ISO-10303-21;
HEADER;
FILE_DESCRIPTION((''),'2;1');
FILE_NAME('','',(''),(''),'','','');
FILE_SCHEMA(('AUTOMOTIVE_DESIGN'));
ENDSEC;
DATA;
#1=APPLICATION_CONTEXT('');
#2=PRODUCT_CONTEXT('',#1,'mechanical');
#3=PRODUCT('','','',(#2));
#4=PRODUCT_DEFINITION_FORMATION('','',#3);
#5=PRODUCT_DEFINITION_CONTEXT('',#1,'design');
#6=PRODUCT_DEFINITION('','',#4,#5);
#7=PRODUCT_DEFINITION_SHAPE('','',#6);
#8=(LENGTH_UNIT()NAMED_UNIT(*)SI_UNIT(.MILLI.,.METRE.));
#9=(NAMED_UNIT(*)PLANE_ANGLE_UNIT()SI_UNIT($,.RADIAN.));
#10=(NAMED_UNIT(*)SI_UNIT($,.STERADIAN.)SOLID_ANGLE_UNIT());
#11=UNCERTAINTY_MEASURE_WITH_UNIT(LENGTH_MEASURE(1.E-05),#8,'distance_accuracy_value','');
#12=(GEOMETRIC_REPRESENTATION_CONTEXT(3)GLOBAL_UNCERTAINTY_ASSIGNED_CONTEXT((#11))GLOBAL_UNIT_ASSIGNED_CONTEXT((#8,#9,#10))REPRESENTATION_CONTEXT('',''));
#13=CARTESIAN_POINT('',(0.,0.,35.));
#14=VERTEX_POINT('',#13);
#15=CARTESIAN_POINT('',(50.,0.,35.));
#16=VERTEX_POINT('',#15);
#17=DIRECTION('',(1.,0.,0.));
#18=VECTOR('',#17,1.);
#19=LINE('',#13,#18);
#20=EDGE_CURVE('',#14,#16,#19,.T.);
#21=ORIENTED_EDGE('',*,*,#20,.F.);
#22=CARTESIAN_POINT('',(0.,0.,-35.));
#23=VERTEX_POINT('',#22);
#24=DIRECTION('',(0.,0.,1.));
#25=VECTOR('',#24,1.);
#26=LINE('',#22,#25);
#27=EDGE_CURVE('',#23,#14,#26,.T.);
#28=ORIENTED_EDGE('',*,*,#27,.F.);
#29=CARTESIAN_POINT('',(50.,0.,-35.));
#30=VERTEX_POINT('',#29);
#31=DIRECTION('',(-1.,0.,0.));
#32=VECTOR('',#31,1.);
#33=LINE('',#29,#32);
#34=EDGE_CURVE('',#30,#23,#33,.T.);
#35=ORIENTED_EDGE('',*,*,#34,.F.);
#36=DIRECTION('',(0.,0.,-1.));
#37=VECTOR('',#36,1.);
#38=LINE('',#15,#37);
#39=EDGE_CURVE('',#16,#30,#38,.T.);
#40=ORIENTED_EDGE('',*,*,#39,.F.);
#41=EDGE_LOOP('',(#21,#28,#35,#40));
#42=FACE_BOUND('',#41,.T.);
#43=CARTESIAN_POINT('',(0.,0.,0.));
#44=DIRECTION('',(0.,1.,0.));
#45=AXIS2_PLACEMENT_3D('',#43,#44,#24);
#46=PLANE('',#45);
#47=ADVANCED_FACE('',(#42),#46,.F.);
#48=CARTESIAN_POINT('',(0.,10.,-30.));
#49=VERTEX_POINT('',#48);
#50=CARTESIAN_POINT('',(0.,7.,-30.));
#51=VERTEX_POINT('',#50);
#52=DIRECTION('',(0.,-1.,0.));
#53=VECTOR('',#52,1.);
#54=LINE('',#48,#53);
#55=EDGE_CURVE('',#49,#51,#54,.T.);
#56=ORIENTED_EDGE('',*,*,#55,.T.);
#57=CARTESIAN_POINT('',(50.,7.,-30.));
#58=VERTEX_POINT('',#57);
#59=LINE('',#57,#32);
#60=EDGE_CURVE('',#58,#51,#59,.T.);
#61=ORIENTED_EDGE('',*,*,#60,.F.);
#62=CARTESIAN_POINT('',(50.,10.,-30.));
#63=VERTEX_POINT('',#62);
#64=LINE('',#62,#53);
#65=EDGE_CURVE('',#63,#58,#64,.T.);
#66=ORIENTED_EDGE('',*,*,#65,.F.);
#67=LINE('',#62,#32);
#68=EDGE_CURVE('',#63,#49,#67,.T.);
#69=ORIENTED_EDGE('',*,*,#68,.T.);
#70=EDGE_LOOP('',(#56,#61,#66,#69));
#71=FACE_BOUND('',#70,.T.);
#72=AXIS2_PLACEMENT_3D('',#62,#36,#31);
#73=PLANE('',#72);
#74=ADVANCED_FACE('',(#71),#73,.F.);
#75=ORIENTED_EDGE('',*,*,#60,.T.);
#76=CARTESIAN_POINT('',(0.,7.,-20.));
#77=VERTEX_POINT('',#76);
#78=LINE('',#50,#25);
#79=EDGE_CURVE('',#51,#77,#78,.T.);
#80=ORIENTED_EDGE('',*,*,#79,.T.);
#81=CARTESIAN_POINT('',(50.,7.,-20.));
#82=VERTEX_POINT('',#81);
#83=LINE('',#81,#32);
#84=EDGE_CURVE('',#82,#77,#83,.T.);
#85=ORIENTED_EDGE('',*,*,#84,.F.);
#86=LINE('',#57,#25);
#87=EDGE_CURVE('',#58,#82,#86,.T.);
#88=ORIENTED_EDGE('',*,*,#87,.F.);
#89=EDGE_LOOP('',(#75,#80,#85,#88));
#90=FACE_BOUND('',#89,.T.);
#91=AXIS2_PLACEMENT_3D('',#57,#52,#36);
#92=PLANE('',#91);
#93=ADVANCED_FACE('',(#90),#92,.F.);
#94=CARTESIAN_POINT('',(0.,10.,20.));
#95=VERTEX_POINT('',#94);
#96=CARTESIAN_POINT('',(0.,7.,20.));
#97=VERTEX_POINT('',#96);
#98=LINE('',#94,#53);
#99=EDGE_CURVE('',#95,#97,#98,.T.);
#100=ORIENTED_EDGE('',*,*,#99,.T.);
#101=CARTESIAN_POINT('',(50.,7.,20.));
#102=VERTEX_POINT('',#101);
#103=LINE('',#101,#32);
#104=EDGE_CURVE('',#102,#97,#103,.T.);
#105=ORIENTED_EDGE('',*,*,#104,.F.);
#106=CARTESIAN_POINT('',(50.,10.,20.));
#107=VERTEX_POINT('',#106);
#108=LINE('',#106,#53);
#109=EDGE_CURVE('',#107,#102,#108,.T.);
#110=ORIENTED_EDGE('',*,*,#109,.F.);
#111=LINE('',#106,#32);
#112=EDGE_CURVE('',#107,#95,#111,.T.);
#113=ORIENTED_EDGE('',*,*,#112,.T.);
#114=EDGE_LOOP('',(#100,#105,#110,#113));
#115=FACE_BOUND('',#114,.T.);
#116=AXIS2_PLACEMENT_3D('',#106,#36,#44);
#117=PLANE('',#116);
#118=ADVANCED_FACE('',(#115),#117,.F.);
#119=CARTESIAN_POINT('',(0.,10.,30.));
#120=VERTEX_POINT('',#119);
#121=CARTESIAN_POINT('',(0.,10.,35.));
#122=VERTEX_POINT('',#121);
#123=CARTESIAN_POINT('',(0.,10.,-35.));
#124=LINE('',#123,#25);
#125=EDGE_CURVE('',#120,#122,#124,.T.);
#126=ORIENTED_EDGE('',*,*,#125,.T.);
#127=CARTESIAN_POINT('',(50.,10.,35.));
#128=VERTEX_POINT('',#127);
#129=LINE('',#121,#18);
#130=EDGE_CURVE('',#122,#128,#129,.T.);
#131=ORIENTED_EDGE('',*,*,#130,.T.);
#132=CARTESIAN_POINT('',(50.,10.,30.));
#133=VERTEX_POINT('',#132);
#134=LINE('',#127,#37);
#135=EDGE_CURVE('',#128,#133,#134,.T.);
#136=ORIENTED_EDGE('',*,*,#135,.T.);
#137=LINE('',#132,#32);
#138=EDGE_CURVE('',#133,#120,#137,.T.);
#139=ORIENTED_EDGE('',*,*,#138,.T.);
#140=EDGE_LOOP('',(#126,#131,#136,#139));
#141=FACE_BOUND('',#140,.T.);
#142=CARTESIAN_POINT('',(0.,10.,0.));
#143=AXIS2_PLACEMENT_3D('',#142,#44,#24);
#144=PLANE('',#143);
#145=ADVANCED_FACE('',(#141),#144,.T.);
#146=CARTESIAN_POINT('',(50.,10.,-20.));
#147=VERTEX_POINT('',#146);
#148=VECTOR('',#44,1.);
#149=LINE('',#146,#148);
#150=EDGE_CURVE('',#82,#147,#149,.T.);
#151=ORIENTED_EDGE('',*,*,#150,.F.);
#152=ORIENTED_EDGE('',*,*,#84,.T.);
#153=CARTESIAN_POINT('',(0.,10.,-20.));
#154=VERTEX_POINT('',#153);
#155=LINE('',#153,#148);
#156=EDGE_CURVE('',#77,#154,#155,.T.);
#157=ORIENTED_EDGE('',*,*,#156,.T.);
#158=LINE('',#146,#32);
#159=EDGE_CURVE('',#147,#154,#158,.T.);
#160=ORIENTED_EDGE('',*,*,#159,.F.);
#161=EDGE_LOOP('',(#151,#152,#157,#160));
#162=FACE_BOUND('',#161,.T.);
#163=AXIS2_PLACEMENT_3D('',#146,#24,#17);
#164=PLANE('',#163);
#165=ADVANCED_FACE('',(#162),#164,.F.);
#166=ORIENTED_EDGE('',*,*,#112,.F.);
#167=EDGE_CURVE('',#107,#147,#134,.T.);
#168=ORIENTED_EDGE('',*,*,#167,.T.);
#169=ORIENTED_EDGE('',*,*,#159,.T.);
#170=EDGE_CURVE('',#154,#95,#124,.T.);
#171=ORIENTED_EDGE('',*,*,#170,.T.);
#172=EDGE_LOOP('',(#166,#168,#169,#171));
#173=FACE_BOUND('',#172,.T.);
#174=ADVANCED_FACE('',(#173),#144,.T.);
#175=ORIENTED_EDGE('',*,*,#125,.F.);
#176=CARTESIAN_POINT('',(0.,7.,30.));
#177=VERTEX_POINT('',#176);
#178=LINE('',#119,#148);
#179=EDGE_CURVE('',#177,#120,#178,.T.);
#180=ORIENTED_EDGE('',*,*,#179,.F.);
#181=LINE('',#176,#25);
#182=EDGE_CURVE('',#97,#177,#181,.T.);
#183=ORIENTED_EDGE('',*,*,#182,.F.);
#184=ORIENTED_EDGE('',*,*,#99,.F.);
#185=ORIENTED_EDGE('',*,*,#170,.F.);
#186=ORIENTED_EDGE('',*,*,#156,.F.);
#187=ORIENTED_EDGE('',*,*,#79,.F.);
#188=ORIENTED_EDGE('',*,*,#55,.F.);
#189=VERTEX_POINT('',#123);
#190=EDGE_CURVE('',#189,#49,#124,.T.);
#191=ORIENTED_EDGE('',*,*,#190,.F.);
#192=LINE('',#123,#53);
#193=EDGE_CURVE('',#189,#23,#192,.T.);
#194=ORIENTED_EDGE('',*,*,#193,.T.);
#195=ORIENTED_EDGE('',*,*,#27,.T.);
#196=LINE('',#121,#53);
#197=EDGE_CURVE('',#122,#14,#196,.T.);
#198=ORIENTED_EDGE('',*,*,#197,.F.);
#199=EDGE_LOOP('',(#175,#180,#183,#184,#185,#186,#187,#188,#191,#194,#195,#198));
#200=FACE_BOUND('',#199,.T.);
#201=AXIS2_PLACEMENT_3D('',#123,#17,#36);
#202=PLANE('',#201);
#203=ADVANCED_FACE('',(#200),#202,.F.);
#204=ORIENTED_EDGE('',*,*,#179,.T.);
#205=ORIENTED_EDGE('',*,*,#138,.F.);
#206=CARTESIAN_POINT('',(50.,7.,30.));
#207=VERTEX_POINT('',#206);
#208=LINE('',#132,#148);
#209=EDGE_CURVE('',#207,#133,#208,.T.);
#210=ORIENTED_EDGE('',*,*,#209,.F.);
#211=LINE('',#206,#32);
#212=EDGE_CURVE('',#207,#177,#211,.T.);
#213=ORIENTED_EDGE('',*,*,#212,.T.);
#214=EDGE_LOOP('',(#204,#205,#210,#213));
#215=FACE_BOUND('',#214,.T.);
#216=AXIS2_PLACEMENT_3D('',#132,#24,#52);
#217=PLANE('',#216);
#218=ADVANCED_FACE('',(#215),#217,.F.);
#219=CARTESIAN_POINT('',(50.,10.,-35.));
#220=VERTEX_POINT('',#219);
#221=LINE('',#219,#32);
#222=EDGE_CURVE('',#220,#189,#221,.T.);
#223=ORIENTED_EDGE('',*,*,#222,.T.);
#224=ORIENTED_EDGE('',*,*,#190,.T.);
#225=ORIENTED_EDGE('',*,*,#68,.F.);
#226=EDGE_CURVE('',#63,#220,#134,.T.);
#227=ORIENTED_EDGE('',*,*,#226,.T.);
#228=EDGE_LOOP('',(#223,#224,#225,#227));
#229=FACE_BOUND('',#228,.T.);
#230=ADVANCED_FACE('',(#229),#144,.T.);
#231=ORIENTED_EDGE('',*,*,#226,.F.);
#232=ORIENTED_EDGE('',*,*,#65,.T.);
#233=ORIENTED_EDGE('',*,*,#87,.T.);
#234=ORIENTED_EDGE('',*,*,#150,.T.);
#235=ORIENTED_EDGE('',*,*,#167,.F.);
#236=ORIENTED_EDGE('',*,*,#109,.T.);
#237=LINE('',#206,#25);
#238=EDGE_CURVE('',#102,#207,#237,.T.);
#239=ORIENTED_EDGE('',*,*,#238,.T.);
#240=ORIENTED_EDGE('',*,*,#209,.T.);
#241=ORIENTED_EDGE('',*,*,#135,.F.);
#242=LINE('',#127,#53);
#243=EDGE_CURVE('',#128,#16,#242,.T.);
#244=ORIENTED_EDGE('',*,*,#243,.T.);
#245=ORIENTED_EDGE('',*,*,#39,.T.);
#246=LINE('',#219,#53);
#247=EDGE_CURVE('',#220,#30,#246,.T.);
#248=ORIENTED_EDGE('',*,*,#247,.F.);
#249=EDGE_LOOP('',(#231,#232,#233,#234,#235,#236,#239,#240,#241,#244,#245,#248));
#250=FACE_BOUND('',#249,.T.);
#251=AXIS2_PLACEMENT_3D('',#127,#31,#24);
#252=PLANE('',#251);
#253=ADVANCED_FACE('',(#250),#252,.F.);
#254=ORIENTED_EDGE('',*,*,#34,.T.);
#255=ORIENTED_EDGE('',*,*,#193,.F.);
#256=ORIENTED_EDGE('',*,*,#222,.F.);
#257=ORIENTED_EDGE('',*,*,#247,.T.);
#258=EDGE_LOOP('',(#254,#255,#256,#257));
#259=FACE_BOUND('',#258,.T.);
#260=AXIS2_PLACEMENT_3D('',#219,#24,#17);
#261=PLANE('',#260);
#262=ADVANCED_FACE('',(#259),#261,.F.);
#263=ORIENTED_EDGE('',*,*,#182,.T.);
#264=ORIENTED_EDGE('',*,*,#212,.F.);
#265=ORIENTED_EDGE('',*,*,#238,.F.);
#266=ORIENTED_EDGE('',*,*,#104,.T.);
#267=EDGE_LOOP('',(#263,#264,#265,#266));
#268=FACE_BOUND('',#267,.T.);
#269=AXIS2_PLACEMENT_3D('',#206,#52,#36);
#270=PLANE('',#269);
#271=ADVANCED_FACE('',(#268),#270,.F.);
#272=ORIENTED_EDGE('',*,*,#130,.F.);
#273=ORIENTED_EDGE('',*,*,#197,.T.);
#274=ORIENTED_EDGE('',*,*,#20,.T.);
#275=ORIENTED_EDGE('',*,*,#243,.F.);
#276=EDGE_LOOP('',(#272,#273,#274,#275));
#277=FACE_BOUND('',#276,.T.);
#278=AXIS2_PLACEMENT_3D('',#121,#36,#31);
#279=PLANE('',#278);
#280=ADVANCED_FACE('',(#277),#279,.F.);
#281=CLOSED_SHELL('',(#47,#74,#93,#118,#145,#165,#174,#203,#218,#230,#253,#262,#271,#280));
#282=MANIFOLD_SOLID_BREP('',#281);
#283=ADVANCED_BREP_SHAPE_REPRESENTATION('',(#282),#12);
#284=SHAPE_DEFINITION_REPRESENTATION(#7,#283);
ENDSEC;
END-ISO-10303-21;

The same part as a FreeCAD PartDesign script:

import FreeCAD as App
import Part
import Sketcher

V = App.Vector

doc = App.newDocument("Part")
body = doc.addObject("PartDesign::Body", "Body")

sketch1 = body.newObject("Sketcher::SketchObject", "Sketch")
sketch1.AttachmentSupport = (doc.getObject("XZ_Plane"), [""])
sketch1.MapMode = "FlatFace"
sketch1.addGeometry([
    Part.LineSegment(V(0, -35, 0), V(0, 35, 0)),
    Part.LineSegment(V(0, 35, 0), V(50, 35, 0)),
    Part.LineSegment(V(50, 35, 0), V(50, -35, 0)),
    Part.LineSegment(V(50, -35, 0), V(0, -35, 0)),
], False)
sketch1.addConstraint([
    Sketcher.Constraint("Coincident", 0, 2, 1, 1),
    Sketcher.Constraint("Coincident", 1, 2, 2, 1),
    Sketcher.Constraint("Coincident", 2, 2, 3, 1),
    Sketcher.Constraint("Coincident", 3, 2, 0, 1),
    Sketcher.Constraint("Vertical", 0),
    Sketcher.Constraint("Horizontal", 1),
    Sketcher.Constraint("Vertical", 2),
    Sketcher.Constraint("Horizontal", 3),
    Sketcher.Constraint("Symmetric", 0, 2, 3, 2, -1, 1),
    Sketcher.Constraint("DistanceX", 1, 1, 1, 2, 50.0),
    Sketcher.Constraint("DistanceY", 0, 1, 0, 2, 70.0),
])
pad1 = body.newObject("PartDesign::Pad", "Pad")
pad1.Profile = sketch1
pad1.Length = 10
pad1.Reversed = True

sketch2 = body.newObject("Sketcher::SketchObject", "Sketch001")
sketch2.AttachmentSupport = (doc.getObject("YZ_Plane"), [""])
sketch2.MapMode = "FlatFace"
sketch2.addGeometry([
    Part.LineSegment(V(10, -30, 0), V(7, -30, 0)),
    Part.LineSegment(V(7, -30, 0), V(7, -20, 0)),
    Part.LineSegment(V(7, -20, 0), V(10, -20, 0)),
    Part.LineSegment(V(10, -20, 0), V(10, -30, 0)),
    Part.LineSegment(V(10, 20, 0), V(7, 20, 0)),
    Part.LineSegment(V(7, 20, 0), V(7, 30, 0)),
    Part.LineSegment(V(7, 30, 0), V(10, 30, 0)),
    Part.LineSegment(V(10, 30, 0), V(10, 20, 0)),
], False)
sketch2.addConstraint([
    Sketcher.Constraint("Coincident", 0, 2, 1, 1),
    Sketcher.Constraint("Coincident", 1, 2, 2, 1),
    Sketcher.Constraint("Coincident", 2, 2, 3, 1),
    Sketcher.Constraint("Coincident", 3, 2, 0, 1),
    Sketcher.Constraint("Coincident", 4, 2, 5, 1),
    Sketcher.Constraint("Coincident", 5, 2, 6, 1),
    Sketcher.Constraint("Coincident", 6, 2, 7, 1),
    Sketcher.Constraint("Coincident", 7, 2, 4, 1),
    Sketcher.Constraint("Horizontal", 0),
    Sketcher.Constraint("Vertical", 1),
    Sketcher.Constraint("Horizontal", 2),
    Sketcher.Constraint("Vertical", 3),
    Sketcher.Constraint("Horizontal", 4),
    Sketcher.Constraint("Vertical", 5),
    Sketcher.Constraint("Horizontal", 6),
    Sketcher.Constraint("Vertical", 7),
    Sketcher.Constraint("Symmetric", 1, 2, 4, 2, -1),
    Sketcher.Constraint("Symmetric", 3, 2, 6, 2, -1),
    Sketcher.Constraint("DistanceX", 0, 2, 0, 1, 3.0),
    Sketcher.Constraint("DistanceY", 1, 1, 1, 2, 10.0),
    Sketcher.Constraint("DistanceX", -1, 1, 0, 2, 7.0),
    Sketcher.Constraint("DistanceY", 0, 2, -1, 1, 30.0),
])
pocket1 = body.newObject("PartDesign::Pocket", "Pocket")
pocket1.Profile = sketch2
pocket1.Type = "ThroughAll"
pocket1.Reversed = True

doc.recompute()
